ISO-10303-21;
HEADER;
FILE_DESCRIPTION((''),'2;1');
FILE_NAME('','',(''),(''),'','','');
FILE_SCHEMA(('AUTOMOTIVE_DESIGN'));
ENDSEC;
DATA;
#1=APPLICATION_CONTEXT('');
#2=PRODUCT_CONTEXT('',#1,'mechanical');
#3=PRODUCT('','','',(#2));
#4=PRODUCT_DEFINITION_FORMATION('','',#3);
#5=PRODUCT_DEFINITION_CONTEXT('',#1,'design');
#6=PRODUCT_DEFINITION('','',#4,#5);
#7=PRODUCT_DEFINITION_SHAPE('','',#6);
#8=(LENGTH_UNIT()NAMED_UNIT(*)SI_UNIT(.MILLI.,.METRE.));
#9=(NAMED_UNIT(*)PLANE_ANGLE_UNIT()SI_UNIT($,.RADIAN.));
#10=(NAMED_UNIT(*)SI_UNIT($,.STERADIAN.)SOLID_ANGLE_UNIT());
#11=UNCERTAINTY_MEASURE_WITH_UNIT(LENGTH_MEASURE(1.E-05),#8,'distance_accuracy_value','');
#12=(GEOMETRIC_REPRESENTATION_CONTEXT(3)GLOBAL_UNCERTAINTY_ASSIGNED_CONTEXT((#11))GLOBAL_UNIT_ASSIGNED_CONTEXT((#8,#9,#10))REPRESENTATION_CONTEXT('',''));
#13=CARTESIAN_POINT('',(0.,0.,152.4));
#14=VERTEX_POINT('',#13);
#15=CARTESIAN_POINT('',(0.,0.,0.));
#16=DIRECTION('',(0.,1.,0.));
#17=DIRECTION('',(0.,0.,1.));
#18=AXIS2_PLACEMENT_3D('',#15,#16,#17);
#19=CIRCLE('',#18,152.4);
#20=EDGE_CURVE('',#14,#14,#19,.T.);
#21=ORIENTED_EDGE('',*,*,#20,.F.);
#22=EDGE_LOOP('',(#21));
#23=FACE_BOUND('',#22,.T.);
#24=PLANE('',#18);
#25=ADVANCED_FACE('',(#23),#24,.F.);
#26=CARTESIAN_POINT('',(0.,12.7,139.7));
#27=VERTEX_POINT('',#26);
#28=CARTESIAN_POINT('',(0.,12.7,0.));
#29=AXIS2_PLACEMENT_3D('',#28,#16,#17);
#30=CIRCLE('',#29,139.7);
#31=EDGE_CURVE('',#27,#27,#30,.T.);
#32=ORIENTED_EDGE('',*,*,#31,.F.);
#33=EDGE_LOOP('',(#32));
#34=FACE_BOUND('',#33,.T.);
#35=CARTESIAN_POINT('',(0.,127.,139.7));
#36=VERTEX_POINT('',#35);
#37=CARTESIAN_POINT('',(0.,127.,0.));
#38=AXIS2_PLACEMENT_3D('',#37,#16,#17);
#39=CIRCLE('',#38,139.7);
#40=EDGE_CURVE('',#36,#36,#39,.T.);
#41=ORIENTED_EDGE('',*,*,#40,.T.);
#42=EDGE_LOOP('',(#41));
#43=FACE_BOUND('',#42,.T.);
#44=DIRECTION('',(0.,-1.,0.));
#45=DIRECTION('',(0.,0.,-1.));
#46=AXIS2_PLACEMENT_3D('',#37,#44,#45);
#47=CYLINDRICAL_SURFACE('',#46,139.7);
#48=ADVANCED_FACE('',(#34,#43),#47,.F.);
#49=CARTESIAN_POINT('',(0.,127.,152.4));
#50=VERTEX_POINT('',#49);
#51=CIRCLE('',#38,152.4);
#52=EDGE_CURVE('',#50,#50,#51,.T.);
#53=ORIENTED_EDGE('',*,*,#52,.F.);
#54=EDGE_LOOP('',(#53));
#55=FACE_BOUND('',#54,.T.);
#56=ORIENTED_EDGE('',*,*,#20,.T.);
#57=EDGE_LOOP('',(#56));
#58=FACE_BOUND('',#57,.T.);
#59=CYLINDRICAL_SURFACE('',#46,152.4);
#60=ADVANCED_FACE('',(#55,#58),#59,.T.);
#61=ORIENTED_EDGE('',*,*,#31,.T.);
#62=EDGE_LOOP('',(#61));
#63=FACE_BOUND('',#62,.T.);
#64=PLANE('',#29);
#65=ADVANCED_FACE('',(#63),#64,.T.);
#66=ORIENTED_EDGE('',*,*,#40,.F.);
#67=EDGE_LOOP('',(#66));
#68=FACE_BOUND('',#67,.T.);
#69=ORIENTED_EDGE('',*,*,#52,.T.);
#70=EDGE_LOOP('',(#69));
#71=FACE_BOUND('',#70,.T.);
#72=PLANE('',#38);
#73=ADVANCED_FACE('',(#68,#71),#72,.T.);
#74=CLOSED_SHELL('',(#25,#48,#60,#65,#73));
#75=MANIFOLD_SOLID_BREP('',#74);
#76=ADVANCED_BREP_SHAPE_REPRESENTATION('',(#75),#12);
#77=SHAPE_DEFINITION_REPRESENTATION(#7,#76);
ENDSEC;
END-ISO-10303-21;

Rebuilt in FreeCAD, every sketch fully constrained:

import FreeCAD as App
import Part
import Sketcher

V = App.Vector
Q = App.Units.Quantity

doc = App.newDocument("Part")
body = doc.addObject("PartDesign::Body", "Body")

# Sketch on XZ plane
sketch1 = body.newObject("Sketcher::SketchObject", "Sketch")
sketch1.AttachmentSupport = (doc.getObject("XZ_Plane"), [""])
sketch1.MapMode = "FlatFace"
sketch1.addGeometry([
    Part.Circle(V(0, 0, 0), V(0, 0, 1), 152),
    Part.Circle(V(0, 0, 0), V(0, 0, 1), 140),
], False)
sketch1.addConstraint([
    Sketcher.Constraint("Coincident", 0, 3, -1, 1),
    Sketcher.Constraint("Coincident", 1, 3, -1, 1),
    Sketcher.Constraint("Diameter", 0, Q("12 in")),
    Sketcher.Constraint("Diameter", 1, Q("11 in")),
])
pad1 = body.newObject("PartDesign::Pad", "Pad")
pad1.Profile = sketch1
pad1.Length = Q("5 in")
pad1.Reversed = True

# Sketch on XZ plane
sketch2 = body.newObject("Sketcher::SketchObject", "Sketch001")
sketch2.AttachmentSupport = (doc.getObject("XZ_Plane"), [""])
sketch2.MapMode = "FlatFace"
sketch2.addGeometry(Part.Circle(V(0, 0, 0), V(0, 0, 1), 140), False)
sketch2.addConstraint([
    Sketcher.Constraint("Coincident", 0, 3, -1, 1),
    Sketcher.Constraint("Diameter", 0, Q("11 in")),
])
pad2 = body.newObject("PartDesign::Pad", "Pad001")
pad2.Profile = sketch2
pad2.Length = Q("0.5 in")
pad2.Reversed = True

doc.recompute()
